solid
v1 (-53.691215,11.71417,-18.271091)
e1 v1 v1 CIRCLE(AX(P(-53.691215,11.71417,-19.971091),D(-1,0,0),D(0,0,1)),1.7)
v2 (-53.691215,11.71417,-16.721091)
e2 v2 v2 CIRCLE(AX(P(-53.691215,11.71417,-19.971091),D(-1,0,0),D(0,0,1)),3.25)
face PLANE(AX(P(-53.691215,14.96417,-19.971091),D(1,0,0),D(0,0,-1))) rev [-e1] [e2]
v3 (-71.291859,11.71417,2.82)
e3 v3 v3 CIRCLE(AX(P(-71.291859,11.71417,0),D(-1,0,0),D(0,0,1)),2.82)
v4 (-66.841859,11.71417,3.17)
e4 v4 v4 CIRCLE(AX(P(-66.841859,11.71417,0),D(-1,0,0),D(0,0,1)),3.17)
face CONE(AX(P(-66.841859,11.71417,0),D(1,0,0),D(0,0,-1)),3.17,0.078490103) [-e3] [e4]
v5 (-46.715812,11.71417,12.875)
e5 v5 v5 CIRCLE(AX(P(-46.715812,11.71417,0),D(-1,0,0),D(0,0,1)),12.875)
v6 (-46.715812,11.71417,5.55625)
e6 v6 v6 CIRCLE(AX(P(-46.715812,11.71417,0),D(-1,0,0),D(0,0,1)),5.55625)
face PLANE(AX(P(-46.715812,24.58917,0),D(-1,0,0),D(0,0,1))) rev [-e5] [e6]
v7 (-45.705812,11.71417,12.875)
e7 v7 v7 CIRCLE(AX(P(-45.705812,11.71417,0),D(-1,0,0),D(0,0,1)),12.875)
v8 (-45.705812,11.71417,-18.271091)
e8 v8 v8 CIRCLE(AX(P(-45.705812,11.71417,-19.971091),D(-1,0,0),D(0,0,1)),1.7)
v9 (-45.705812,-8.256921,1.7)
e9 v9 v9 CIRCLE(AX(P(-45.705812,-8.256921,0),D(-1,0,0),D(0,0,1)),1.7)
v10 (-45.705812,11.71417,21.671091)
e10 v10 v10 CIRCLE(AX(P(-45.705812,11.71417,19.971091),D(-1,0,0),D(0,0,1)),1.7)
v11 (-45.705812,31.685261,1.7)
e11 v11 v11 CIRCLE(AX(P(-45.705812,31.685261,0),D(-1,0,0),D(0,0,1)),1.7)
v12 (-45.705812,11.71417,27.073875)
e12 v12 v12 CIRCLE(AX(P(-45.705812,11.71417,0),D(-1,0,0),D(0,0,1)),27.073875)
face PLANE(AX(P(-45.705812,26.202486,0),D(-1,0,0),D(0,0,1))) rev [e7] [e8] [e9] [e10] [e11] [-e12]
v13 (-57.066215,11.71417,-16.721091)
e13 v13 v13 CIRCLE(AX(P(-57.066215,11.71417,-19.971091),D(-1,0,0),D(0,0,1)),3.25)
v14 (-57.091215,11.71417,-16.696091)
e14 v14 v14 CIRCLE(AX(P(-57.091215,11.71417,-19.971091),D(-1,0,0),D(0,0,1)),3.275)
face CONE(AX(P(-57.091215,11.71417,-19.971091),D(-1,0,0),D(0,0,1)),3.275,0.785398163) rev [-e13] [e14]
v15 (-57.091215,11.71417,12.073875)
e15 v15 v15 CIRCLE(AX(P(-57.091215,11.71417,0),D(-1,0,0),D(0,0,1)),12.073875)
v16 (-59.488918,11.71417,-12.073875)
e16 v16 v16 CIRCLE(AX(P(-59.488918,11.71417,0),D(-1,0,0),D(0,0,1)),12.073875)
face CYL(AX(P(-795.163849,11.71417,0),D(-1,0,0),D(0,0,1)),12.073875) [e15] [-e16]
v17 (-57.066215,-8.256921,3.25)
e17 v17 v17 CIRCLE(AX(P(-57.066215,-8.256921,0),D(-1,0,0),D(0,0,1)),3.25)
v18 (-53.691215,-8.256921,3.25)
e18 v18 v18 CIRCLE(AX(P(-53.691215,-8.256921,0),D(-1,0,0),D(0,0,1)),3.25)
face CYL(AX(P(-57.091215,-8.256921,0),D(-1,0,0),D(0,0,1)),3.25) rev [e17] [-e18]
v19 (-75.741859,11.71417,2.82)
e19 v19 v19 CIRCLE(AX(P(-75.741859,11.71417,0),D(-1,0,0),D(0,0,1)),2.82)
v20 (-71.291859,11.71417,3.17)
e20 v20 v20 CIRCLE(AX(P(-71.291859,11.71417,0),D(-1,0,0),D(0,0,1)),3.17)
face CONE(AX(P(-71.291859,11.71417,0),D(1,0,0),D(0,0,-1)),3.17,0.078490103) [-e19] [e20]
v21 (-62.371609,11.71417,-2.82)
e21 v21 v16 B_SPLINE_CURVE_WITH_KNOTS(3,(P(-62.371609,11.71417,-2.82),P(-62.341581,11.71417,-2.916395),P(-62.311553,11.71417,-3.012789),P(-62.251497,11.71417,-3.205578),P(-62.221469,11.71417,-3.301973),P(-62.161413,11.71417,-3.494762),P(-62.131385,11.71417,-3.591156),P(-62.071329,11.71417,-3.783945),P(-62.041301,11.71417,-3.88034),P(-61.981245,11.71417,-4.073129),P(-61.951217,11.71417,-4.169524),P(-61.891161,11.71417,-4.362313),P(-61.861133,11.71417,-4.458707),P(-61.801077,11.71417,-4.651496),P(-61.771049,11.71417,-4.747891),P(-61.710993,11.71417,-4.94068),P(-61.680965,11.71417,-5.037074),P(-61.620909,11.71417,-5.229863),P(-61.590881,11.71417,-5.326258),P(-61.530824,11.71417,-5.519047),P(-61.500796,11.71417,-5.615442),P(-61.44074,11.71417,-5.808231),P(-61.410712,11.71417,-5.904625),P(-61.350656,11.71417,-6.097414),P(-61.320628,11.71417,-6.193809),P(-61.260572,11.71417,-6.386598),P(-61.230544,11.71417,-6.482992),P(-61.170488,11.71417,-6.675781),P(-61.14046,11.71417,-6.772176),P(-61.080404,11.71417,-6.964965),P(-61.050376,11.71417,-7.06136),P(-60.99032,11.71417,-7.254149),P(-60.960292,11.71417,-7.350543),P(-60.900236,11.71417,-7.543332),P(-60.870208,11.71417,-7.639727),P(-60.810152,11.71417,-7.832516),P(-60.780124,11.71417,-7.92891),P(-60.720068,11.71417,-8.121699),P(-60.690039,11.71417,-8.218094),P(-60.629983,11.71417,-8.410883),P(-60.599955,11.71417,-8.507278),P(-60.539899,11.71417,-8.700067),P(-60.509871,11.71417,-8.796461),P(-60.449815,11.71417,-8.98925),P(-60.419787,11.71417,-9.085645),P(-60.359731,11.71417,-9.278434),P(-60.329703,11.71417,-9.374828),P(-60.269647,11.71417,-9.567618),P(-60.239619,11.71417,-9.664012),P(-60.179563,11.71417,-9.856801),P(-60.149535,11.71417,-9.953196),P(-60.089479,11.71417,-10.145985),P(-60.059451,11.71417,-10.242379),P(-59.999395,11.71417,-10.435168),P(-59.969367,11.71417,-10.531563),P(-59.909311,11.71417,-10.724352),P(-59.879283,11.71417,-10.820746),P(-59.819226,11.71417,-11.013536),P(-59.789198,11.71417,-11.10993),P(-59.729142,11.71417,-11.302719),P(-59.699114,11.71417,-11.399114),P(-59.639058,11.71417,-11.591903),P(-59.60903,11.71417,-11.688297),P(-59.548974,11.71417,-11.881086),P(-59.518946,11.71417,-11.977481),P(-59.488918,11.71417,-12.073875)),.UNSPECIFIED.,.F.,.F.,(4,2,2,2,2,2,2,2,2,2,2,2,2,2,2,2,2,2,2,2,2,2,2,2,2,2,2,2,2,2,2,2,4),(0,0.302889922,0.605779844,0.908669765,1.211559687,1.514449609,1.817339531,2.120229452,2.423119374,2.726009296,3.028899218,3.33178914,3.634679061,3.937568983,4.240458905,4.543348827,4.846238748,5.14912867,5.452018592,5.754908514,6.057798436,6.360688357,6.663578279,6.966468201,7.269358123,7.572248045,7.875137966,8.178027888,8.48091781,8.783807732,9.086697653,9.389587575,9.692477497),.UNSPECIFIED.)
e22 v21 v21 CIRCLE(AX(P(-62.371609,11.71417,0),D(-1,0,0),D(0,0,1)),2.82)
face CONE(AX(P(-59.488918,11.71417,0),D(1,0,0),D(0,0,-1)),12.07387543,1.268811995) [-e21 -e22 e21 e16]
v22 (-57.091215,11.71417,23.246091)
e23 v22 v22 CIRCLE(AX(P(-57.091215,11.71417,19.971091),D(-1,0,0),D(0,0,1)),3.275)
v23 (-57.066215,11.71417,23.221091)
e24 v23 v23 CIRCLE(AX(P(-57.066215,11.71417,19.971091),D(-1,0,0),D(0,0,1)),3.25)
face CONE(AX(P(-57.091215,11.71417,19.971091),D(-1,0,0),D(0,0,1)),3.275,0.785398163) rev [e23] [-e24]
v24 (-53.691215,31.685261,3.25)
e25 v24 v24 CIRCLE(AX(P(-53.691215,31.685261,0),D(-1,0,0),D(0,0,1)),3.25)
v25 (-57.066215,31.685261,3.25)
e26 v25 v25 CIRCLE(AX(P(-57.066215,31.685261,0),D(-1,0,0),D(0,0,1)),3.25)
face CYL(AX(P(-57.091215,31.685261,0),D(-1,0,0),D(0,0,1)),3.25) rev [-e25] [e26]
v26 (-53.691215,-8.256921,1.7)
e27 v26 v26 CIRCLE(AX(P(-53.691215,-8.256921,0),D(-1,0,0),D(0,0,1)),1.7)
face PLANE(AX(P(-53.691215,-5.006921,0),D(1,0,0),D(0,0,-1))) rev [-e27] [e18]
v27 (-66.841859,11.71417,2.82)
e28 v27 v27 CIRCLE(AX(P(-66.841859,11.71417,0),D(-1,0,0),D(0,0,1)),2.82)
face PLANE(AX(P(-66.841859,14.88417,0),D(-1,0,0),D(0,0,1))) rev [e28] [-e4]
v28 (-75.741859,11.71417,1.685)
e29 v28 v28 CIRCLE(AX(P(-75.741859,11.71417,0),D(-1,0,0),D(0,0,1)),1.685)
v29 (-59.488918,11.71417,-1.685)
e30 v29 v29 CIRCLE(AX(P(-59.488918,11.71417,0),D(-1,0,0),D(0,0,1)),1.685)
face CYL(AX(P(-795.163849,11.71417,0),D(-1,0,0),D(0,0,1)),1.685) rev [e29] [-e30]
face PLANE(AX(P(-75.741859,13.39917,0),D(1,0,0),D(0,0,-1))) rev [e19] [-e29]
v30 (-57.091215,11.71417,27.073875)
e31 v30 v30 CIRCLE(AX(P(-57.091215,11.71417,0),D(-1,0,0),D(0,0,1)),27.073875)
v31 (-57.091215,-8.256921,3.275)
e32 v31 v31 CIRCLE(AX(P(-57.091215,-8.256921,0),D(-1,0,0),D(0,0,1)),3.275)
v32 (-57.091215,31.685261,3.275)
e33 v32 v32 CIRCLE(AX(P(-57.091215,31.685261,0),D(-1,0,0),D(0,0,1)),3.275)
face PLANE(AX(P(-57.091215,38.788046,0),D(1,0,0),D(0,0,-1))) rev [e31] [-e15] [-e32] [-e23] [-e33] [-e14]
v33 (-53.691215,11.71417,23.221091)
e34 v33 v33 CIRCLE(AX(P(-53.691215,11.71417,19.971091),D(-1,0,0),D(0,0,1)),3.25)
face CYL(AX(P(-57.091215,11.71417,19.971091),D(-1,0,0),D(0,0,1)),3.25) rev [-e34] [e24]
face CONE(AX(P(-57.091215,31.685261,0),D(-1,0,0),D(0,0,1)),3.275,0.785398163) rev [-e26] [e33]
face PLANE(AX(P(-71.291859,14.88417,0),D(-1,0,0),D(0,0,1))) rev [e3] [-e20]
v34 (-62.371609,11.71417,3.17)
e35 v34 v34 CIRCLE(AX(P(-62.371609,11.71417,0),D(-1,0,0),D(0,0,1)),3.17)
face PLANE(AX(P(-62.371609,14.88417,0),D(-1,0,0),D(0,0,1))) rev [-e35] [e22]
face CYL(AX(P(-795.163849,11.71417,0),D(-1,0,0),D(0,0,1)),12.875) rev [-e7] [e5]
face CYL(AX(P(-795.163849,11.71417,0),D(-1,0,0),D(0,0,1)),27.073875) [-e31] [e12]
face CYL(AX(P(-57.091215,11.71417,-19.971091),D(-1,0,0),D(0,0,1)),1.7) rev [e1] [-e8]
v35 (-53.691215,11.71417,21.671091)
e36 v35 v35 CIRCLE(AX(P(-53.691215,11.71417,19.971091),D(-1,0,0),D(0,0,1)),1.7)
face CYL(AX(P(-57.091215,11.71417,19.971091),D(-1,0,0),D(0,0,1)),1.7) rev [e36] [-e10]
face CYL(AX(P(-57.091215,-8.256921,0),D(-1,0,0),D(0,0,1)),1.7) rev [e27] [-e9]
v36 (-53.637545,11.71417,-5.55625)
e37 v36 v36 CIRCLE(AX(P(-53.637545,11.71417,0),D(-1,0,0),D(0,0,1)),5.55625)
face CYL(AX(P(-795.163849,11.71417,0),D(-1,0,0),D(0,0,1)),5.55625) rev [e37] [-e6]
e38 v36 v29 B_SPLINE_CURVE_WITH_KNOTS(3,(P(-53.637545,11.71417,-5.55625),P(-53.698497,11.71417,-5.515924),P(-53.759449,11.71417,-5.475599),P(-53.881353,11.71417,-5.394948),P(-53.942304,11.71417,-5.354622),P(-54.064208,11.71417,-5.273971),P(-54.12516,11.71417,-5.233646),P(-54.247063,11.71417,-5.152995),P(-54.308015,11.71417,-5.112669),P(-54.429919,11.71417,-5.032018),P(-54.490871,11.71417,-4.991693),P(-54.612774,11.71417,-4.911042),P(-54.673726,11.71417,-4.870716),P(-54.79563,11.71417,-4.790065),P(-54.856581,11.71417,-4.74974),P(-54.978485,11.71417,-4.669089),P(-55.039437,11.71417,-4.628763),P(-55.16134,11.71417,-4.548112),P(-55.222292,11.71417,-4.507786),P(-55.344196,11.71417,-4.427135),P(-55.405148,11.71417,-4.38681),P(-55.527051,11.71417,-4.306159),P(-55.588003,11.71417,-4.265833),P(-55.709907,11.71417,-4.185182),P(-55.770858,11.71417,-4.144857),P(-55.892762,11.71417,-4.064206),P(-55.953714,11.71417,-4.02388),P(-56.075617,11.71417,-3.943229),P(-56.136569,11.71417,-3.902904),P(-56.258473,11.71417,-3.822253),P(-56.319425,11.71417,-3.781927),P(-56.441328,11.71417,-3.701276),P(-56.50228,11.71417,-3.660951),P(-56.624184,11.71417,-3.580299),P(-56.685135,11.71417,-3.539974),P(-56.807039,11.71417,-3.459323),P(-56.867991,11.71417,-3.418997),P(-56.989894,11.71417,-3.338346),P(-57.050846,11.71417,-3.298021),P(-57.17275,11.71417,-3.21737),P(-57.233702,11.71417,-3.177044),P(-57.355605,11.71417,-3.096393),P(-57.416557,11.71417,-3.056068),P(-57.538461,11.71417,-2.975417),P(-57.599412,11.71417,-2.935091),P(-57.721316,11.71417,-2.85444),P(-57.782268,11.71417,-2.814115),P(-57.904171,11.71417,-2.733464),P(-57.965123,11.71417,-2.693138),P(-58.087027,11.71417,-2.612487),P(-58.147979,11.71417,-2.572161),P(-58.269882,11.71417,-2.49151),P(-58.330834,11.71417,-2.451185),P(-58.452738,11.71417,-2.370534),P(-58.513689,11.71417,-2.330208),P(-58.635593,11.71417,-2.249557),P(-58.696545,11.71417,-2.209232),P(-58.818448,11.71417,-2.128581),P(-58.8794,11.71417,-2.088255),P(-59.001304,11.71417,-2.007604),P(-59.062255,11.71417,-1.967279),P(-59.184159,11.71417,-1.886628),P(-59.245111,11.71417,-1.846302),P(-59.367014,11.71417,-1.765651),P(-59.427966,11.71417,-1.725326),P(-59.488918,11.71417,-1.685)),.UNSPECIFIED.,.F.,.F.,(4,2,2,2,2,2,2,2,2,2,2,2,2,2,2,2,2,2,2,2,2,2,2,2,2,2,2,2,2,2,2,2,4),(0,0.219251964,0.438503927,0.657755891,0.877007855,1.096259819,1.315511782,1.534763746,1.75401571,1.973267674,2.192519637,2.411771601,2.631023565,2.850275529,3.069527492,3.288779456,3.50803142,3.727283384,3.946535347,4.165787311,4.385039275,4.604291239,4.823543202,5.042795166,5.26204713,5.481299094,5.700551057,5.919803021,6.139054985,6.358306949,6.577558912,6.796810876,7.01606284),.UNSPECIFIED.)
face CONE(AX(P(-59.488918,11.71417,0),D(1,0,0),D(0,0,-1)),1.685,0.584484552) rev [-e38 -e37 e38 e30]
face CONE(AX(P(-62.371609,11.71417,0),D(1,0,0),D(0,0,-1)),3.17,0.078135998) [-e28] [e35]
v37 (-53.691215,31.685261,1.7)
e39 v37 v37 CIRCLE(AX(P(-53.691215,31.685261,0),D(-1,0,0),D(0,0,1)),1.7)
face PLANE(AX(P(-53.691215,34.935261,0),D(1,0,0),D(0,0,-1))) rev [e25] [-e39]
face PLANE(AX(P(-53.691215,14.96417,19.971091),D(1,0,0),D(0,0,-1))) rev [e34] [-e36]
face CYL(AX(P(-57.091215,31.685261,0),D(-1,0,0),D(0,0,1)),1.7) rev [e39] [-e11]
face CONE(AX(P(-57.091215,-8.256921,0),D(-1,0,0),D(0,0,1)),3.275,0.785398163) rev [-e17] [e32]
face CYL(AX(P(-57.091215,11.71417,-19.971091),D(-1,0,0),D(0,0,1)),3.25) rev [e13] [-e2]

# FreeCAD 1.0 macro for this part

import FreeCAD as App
import Part
import Sketcher

V = App.Vector
Q = App.Units.Quantity


def add_polygon(sketch, points):
    """Adds a closed chain of lines whose ends are joined by coincident constraints."""
    first, n = sketch.GeometryCount, len(points)
    for a, b in zip(points, points[1:] + points[:1]):
        sketch.addGeometry(Part.LineSegment(App.Vector(*a, 0), App.Vector(*b, 0)), False)
    for i in range(n):
        sketch.addConstraint(Sketcher.Constraint("Coincident", first + i, 2, first + (i + 1) % n, 1))

doc = App.newDocument("Part")
params = doc.addObject("Spreadsheet::Sheet", "Params")
for row, (alias, value) in enumerate([
    ("sketch1_height", "15 mm"),
    ("sketch1_width", "1.01 mm"),
    ("sketch1_height2", "0.35 mm"),
    ("revolution_angle", "360 deg"),
    ("sketch2_height", "1.7 mm"),
    ("sketch2_height2", "1.55 mm"),
    ("groove_angle", "360 deg"),
    ("linearpattern_pitch", "28.243388 mm"),
    ("linearpattern2_pitch", "39.942182 mm"),
    ("linearpattern3_pitch", "28.243388 mm"),
], start=1):
    params.set(f"A{row}", alias)
    params.set(f"B{row}", "=" + value)
    params.setAlias(f"B{row}", alias)

body = doc.addObject("PartDesign::Body", "Body")

# Sketch on XY plane
sketch1 = doc.addObject("Sketcher::SketchObject", "Sketch")
body.addObject(sketch1)
sketch1.AttachmentSupport = (doc.XY_Plane, [""])
sketch1.MapMode = "FlatFace"
add_polygon(sketch1, [(-71.29, 14.53), (-71.29, 14.88), (-75.74, 14.53), (-75.74, 13.4), (-59.49, 13.4), (-53.64, 17.27), (-46.72, 17.27), (-46.72, 24.59), (-45.71, 24.59), (-45.71, 38.79), (-57.09, 38.79), (-57.09, 23.79), (-59.49, 23.79), (-62.37, 14.53), (-62.37, 14.88), (-66.84, 14.53), (-66.84, 14.88)])  # lines 0-16
sketch1.addGeometry(Part.LineSegment(V(-75.74, 11.71, 0), V(-45.71, 11.71, 0)), True)  # axis
sketch1.addConstraint([
    Sketcher.Constraint("Vertical", 0),
    Sketcher.Constraint("Vertical", 2),
    Sketcher.Constraint("Horizontal", 3),
    Sketcher.Constraint("Horizontal", 5),
    Sketcher.Constraint("Vertical", 6),
    Sketcher.Constraint("Horizontal", 7),
    Sketcher.Constraint("Vertical", 8),
    Sketcher.Constraint("Horizontal", 9),
    Sketcher.Constraint("Vertical", 10),
    Sketcher.Constraint("Horizontal", 11),
    Sketcher.Constraint("Vertical", 13),
    Sketcher.Constraint("Vertical", 15),
    Sketcher.Constraint("Horizontal", 17),
    Sketcher.Constraint("Parallel", 1, 16),
    Sketcher.Constraint("Horizontal", 1, 2, 12, 2),
    Sketcher.Constraint("Horizontal", 0, 2, 13, 2),
    Sketcher.Constraint("Horizontal", 12, 2, 14, 2),
    Sketcher.Constraint("Horizontal", 13, 2, 15, 2),
    Sketcher.Constraint("Horizontal", 14, 2, 16, 2),
    Sketcher.Constraint("Vertical", 3, 2, 11, 2),
    Sketcher.Constraint("Vertical", 2, 2, 17, 1),
    Sketcher.Constraint("Vertical", 8, 2, 17, 2),
    Sketcher.Constraint("DistanceY", 10, 2, 10, 1, 15.0),
    Sketcher.Constraint("DistanceX", 7, 1, 7, 2, 1.01),
    Sketcher.Constraint("DistanceY", 0, 1, 0, 2, 0.35),
    Sketcher.Constraint("DistanceX", 1, 2, 14, 2, 8.9),
    Sketcher.Constraint("DistanceY", 2, 2, 2, 1, 1.135),
    Sketcher.Constraint("DistanceY", 3, 2, 6, 2, 11.19),
    Sketcher.Constraint("DistanceY", 17, 1, 1, 2, 2.82),
    Sketcher.Constraint("DistanceX", 3, 1, 3, 2, 16.252941),
    Sketcher.Constraint("DistanceY", 6, 1, 6, 2, 7.31875),
    Sketcher.Constraint("Distance", 14, 4.483931),
    Sketcher.Constraint("DistanceX", 5, 1, 5, 2, 6.921734),
    Sketcher.Constraint("DistanceX", 9, 2, 9, 1, 11.385403),
    Sketcher.Constraint("DistanceX", 11, 2, 11, 1, 2.397703),
    Sketcher.Constraint("DistanceY", 8, 1, 8, 2, 14.198875),
    Sketcher.Constraint("DistanceX", 0, 2, -1, 1, 71.291859),
    Sketcher.Constraint("DistanceY", -1, 1, 0, 2, 14.88417),
])
sketch1.setExpression("Constraints[39]", "Params.sketch1_height")
sketch1.setExpression("Constraints[40]", "Params.sketch1_width")
sketch1.setExpression("Constraints[41]", "Params.sketch1_height2")
revolution = doc.addObject("PartDesign::Revolution", "Revolution")
body.addObject(revolution)
revolution.Profile = sketch1
revolution.ReferenceAxis = (sketch1, ["Axis0"])
revolution.setExpression("Angle", "Params.revolution_angle")

# Sketch on XZ plane
sketch2 = doc.addObject("Sketcher::SketchObject", "Sketch001")
body.addObject(sketch2)
sketch2.AttachmentSupport = (doc.XZ_Plane, [""])
sketch2.MapMode = "FlatFace"
sketch2.AttachmentOffset = App.Placement(V(0, 0, -11.71417), App.Rotation())
add_polygon(sketch2, [(-45.706, -19.971), (-57.091, -19.971), (-57.091, -16.696), (-57.066, -16.721), (-53.691, -16.721), (-53.691, -18.271), (-45.706, -18.271)])  # lines 0-6
sketch2.addGeometry(Part.LineSegment(V(-57.091, -19.971, 0), V(-45.706, -19.971, 0)), True)  # axis
sketch2.addConstraint([
    Sketcher.Constraint("Horizontal", 0),
    Sketcher.Constraint("Vertical", 1),
    Sketcher.Constraint("Horizontal", 3),
    Sketcher.Constraint("Vertical", 4),
    Sketcher.Constraint("Horizontal", 5),
    Sketcher.Constraint("Vertical", 6),
    Sketcher.Constraint("Horizontal", 7),
    Sketcher.Constraint("Coincident", 7, 1, 0, 2),
    Sketcher.Constraint("Vertical", 5, 2, 7, 2),
    Sketcher.Constraint("Angle", 2, Q("-45 deg")),
    Sketcher.Constraint("DistanceY", 6, 2, 6, 1, 1.7),
    Sketcher.Constraint("DistanceY", 4, 2, 4, 1, 1.55),
    Sketcher.Constraint("DistanceX", 1, 2, 3, 2, 3.4),
    Sketcher.Constraint("DistanceX", 3, 1, 3, 2, 3.375),
    Sketcher.Constraint("DistanceX", 0, 2, 0, 1, 11.385403),
    Sketcher.Constraint("DistanceY", 0, 2, -1, 1, 19.971091),
    Sketcher.Constraint("DistanceX", 5, 2, -1, 1, 45.705812),
])
sketch2.setExpression("Constraints[17]", "Params.sketch2_height")
sketch2.setExpression("Constraints[18]", "Params.sketch2_height2")
groove = doc.addObject("PartDesign::Groove", "Groove")
body.addObject(groove)
groove.Profile = sketch2
groove.ReferenceAxis = (sketch2, ["Axis0"])
groove.setExpression("Angle", "Params.groove_angle")
doc.recompute()

datumline = doc.addObject("PartDesign::Line", "DatumLine")
body.addObject(datumline)
datumline.Placement = App.Placement(V(0, 0, 0), App.Rotation(V(0, 0, 1), V(0, 0.707106781, 0.707106781)))
linearpattern = doc.addObject("PartDesign::LinearPattern", "LinearPattern")
body.addObject(linearpattern)
linearpattern.Originals = [groove]
linearpattern.Direction = (datumline, [""])
linearpattern.Mode = "offset"
linearpattern.setExpression("Offset", "Params.linearpattern_pitch")
linearpattern.Occurrences = 2
body.Tip = linearpattern
doc.recompute()

linearpattern2 = doc.addObject("PartDesign::LinearPattern", "LinearPattern001")
body.addObject(linearpattern2)
linearpattern2.Originals = [groove]
linearpattern2.Direction = (doc.Z_Axis, [""])
linearpattern2.Mode = "offset"
linearpattern2.setExpression("Offset", "Params.linearpattern2_pitch")
linearpattern2.Occurrences = 2
body.Tip = linearpattern2
doc.recompute()

datumline2 = doc.addObject("PartDesign::Line", "DatumLine001")
body.addObject(datumline2)
datumline2.Placement = App.Placement(V(0, 0, 0), App.Rotation(V(0, 0, 1), V(0, -0.707106781, 0.707106781)))
linearpattern3 = doc.addObject("PartDesign::LinearPattern", "LinearPattern002")
body.addObject(linearpattern3)
linearpattern3.Originals = [groove]
linearpattern3.Direction = (datumline2, [""])
linearpattern3.Mode = "offset"
linearpattern3.setExpression("Offset", "Params.linearpattern3_pitch")
linearpattern3.Occurrences = 2
body.Tip = linearpattern3

doc.recompute()
